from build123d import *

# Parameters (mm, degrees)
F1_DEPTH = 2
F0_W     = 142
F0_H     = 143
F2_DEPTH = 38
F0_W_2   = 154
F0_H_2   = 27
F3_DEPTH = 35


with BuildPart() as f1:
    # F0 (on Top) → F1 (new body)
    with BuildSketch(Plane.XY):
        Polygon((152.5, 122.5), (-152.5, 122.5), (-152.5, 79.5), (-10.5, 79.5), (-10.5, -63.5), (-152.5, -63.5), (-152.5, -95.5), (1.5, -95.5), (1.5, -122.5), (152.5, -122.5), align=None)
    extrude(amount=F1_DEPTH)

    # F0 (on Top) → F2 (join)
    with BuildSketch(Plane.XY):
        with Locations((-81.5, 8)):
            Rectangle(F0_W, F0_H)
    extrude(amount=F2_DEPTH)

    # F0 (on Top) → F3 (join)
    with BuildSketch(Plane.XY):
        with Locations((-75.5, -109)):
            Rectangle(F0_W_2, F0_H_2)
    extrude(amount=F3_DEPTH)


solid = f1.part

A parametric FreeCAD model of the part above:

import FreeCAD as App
import Part
import Sketcher
Q = App.Units.Quantity


def add_polygon(sketch, points):
    """Adds a closed chain of lines whose ends are joined by coincident constraints."""
    first, n = sketch.GeometryCount, len(points)
    for a, b in zip(points, points[1:] + points[:1]):
        sketch.addGeometry(Part.LineSegment(App.Vector(*a, 0), App.Vector(*b, 0)), False)
    for i in range(n):
        sketch.addConstraint(Sketcher.Constraint("Coincident", first + i, 2, first + (i + 1) % n, 1))

doc = App.newDocument("Part")
body = doc.addObject("PartDesign::Body", "Body")

# Sketch on XY plane
sketch1 = body.newObject("Sketcher::SketchObject", "Sketch")
sketch1.AttachmentSupport = (doc.getObject("XY_Plane"), [""])
sketch1.MapMode = "FlatFace"
add_polygon(sketch1, [(152, 122), (-152, 122), (-152, 80), (-10, 80), (-10, -64), (-152, -64), (-152, -96), (2, -96), (2, -122), (152, -122)])  # lines 0-9
sketch1.addConstraint(Sketcher.Constraint("Horizontal", 0))
sketch1.addConstraint(Sketcher.Constraint("Vertical", 1))
sketch1.addConstraint(Sketcher.Constraint("Horizontal", 2))
sketch1.addConstraint(Sketcher.Constraint("Vertical", 3))
sketch1.addConstraint(Sketcher.Constraint("Horizontal", 4))
sketch1.addConstraint(Sketcher.Constraint("Vertical", 5))
sketch1.addConstraint(Sketcher.Constraint("Horizontal", 6))
sketch1.addConstraint(Sketcher.Constraint("Vertical", 7))
sketch1.addConstraint(Sketcher.Constraint("Horizontal", 8))
sketch1.addConstraint(Sketcher.Constraint("Vertical", 9))
sketch1.addConstraint(Sketcher.Constraint("Symmetric", 0, 2, 8, 2, -1, 1))
sketch1.addConstraint(Sketcher.Constraint("Vertical", 1, 2, 4, 2))
sketch1.addConstraint(Sketcher.Constraint("DistanceX", 0, 2, 0, 1, Q("305 mm")))
sketch1.addConstraint(Sketcher.Constraint("DistanceX", 2, 1, 2, 2, Q("142 mm")))
sketch1.addConstraint(Sketcher.Constraint("DistanceX", 6, 1, 6, 2, Q("154 mm")))
sketch1.addConstraint(Sketcher.Constraint("DistanceY", 1, 2, 1, 1, Q("43 mm")))
sketch1.addConstraint(Sketcher.Constraint("DistanceY", 3, 2, 3, 1, Q("143 mm")))
sketch1.addConstraint(Sketcher.Constraint("DistanceY", 5, 2, 5, 1, Q("32 mm")))
sketch1.addConstraint(Sketcher.Constraint("DistanceY", 7, 2, 7, 1, Q("27 mm")))
pad1 = body.newObject("PartDesign::Pad", "Pad")
pad1.Profile = sketch1
pad1.Length = 2

# Sketch on XY plane
sketch2 = body.newObject("Sketcher::SketchObject", "Sketch001")
sketch2.AttachmentSupport = (doc.getObject("XY_Plane"), [""])
sketch2.MapMode = "FlatFace"
add_polygon(sketch2, [(-152, 80), (-152, -64), (-10, -64), (-10, 80)])  # lines 0-3
sketch2.addConstraint(Sketcher.Constraint("Vertical", 0))
sketch2.addConstraint(Sketcher.Constraint("Horizontal", 1))
sketch2.addConstraint(Sketcher.Constraint("Vertical", 2))
sketch2.addConstraint(Sketcher.Constraint("Horizontal", 3))
sketch2.addConstraint(Sketcher.Constraint("DistanceX", 1, 1, 1, 2, Q("142 mm")))
sketch2.addConstraint(Sketcher.Constraint("DistanceY", 0, 2, 0, 1, Q("143 mm")))
sketch2.addConstraint(Sketcher.Constraint("DistanceX", 0, 2, -1, 1, Q("152.5 mm")))
sketch2.addConstraint(Sketcher.Constraint("DistanceY", 0, 2, -1, 1, Q("63.5 mm")))
pad2 = body.newObject("PartDesign::Pad", "Pad001")
pad2.Profile = sketch2
pad2.Length = 38

# Sketch on XY plane
sketch3 = body.newObject("Sketcher::SketchObject", "Sketch002")
sketch3.AttachmentSupport = (doc.getObject("XY_Plane"), [""])
sketch3.MapMode = "FlatFace"
add_polygon(sketch3, [(-152, -96), (-152, -122), (2, -122), (2, -96)])  # lines 0-3
sketch3.addConstraint(Sketcher.Constraint("Vertical", 0))
sketch3.addConstraint(Sketcher.Constraint("Horizontal", 1))
sketch3.addConstraint(Sketcher.Constraint("Vertical", 2))
sketch3.addConstraint(Sketcher.Constraint("Horizontal", 3))
sketch3.addConstraint(Sketcher.Constraint("DistanceX", 1, 1, 1, 2, Q("154 mm")))
sketch3.addConstraint(Sketcher.Constraint("DistanceY", 0, 2, 0, 1, Q("27 mm")))
sketch3.addConstraint(Sketcher.Constraint("DistanceX", 0, 2, -1, 1, Q("152.5 mm")))
sketch3.addConstraint(Sketcher.Constraint("DistanceY", 0, 2, -1, 1, Q("122.5 mm")))
pad3 = body.newObject("PartDesign::Pad", "Pad002")
pad3.Profile = sketch3
pad3.Length = 35

doc.recompute()
